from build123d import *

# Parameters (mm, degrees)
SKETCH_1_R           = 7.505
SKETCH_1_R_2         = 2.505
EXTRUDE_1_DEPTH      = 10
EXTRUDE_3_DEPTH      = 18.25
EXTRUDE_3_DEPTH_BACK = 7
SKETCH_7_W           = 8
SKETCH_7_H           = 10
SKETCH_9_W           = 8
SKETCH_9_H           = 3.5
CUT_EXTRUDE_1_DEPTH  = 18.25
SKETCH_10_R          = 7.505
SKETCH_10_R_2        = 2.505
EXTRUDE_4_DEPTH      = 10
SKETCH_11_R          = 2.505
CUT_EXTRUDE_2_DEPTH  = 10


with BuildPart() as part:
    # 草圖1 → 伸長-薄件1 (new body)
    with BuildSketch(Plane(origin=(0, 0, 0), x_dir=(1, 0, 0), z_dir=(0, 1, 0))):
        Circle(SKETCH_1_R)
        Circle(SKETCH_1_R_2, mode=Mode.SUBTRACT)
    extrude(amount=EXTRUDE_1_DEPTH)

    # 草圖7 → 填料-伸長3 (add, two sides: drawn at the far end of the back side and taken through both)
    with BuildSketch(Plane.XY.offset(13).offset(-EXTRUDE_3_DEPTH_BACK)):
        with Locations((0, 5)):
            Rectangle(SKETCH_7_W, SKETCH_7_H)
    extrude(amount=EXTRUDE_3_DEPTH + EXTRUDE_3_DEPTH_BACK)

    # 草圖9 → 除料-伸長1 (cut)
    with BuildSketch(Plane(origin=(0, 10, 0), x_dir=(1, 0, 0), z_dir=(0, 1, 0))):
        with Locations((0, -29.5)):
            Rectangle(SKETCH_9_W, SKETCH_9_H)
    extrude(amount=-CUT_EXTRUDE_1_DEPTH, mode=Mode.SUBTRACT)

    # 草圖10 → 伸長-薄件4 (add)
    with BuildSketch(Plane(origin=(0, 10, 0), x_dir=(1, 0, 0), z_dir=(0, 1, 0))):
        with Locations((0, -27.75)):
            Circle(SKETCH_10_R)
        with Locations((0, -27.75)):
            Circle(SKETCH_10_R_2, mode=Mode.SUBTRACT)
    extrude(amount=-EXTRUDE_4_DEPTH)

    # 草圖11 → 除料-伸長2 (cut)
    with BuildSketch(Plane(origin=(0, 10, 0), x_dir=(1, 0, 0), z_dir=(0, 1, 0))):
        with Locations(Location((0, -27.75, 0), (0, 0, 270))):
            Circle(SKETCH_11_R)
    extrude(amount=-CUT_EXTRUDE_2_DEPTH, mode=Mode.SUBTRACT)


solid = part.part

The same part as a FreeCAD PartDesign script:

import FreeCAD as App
import Part
import Sketcher
from FreeCAD import Vector

doc = App.newDocument("Part")
body = doc.addObject("PartDesign::Body", "Body")

# Sketch on XZ plane
sketch1 = doc.addObject("Sketcher::SketchObject", "Sketch")
body.addObject(sketch1)
sketch1.AttachmentSupport = (doc.XZ_Plane, [""])
sketch1.MapMode = "FlatFace"
sketch1.addGeometry([
    Part.Circle(Vector(0, 0, 0), Vector(0, 0, 1), 7.5),
    Part.Circle(Vector(0, 0, 0), Vector(0, 0, 1), 2.5),
], False)
sketch1.addConstraint([
    Sketcher.Constraint("Coincident", 0, 3, -1, 1),
    Sketcher.Constraint("Coincident", 1, 3, -1, 1),
    Sketcher.Constraint("Diameter", 0, 15.01),
    Sketcher.Constraint("Diameter", 1, 5.01),
])
pad1 = doc.addObject("PartDesign::Pad", "Pad")
body.addObject(pad1)
pad1.Profile = sketch1
pad1.Length = 10
pad1.Reversed = True

# Sketch on XY plane
sketch2 = doc.addObject("Sketcher::SketchObject", "Sketch001")
body.addObject(sketch2)
sketch2.AttachmentSupport = (doc.XY_Plane, [""])
sketch2.MapMode = "FlatFace"
sketch2.AttachmentOffset = App.Placement(Vector(0, 0, 13), App.Rotation())
sketch2.addGeometry([
    Part.LineSegment(Vector(-4, 10, 0), Vector(-4, 0, 0)),
    Part.LineSegment(Vector(-4, 0, 0), Vector(4, 0, 0)),
    Part.LineSegment(Vector(4, 0, 0), Vector(4, 10, 0)),
    Part.LineSegment(Vector(4, 10, 0), Vector(-4, 10, 0)),
], False)
sketch2.addConstraint([
    Sketcher.Constraint("Coincident", 0, 2, 1, 1),
    Sketcher.Constraint("Coincident", 1, 2, 2, 1),
    Sketcher.Constraint("Coincident", 2, 2, 3, 1),
    Sketcher.Constraint("Coincident", 3, 2, 0, 1),
    Sketcher.Constraint("Vertical", 0),
    Sketcher.Constraint("Horizontal", 1),
    Sketcher.Constraint("Vertical", 2),
    Sketcher.Constraint("Horizontal", 3),
    Sketcher.Constraint("Symmetric", 0, 2, 1, 2, -1, 1),
    Sketcher.Constraint("DistanceX", 1, 1, 1, 2, 8.0),
    Sketcher.Constraint("DistanceY", 0, 2, 0, 1, 10.0),
])
pad2 = doc.addObject("PartDesign::Pad", "Pad001")
body.addObject(pad2)
pad2.Profile = sketch2
pad2.Type = "TwoLengths"
pad2.Length = 18.25
pad2.Length2 = 7

# Sketch on XZ plane
sketch3 = doc.addObject("Sketcher::SketchObject", "Sketch002")
body.addObject(sketch3)
sketch3.AttachmentSupport = (doc.XZ_Plane, [""])
sketch3.MapMode = "FlatFace"
sketch3.AttachmentOffset = App.Placement(Vector(0, 0, -10), App.Rotation())
sketch3.addGeometry([
    Part.LineSegment(Vector(-4, 27.8, 0), Vector(-4, 31.2, 0)),
    Part.LineSegment(Vector(-4, 31.2, 0), Vector(4, 31.2, 0)),
    Part.LineSegment(Vector(4, 31.2, 0), Vector(4, 27.8, 0)),
    Part.LineSegment(Vector(4, 27.8, 0), Vector(-4, 27.8, 0)),
], False)
sketch3.addConstraint([
    Sketcher.Constraint("Coincident", 0, 2, 1, 1),
    Sketcher.Constraint("Coincident", 1, 2, 2, 1),
    Sketcher.Constraint("Coincident", 2, 2, 3, 1),
    Sketcher.Constraint("Coincident", 3, 2, 0, 1),
    Sketcher.Constraint("Vertical", 0),
    Sketcher.Constraint("Horizontal", 1),
    Sketcher.Constraint("Vertical", 2),
    Sketcher.Constraint("Horizontal", 3),
    Sketcher.Constraint("DistanceX", 1, 1, 1, 2, 8.0),
    Sketcher.Constraint("DistanceY", 0, 1, 0, 2, 3.5),
    Sketcher.Constraint("DistanceX", 0, 2, -1, 1, 4.0),
    Sketcher.Constraint("DistanceY", -1, 1, 0, 2, 31.25),
])
pocket1 = doc.addObject("PartDesign::Pocket", "Pocket")
body.addObject(pocket1)
pocket1.Profile = sketch3
pocket1.Length = 18.25
pocket1.Reversed = True

# Sketch on XZ plane
sketch4 = doc.addObject("Sketcher::SketchObject", "Sketch003")
body.addObject(sketch4)
sketch4.AttachmentSupport = (doc.XZ_Plane, [""])
sketch4.MapMode = "FlatFace"
sketch4.AttachmentOffset = App.Placement(Vector(0, 0, -10), App.Rotation())
sketch4.addGeometry([
    Part.Circle(Vector(0, 27.8, 0), Vector(0, 0, 1), 7.5),
    Part.Circle(Vector(0, 27.8, 0), Vector(0, 0, 1), 2.5),
], False)
sketch4.addConstraint([
    Sketcher.Constraint("Coincident", 1, 3, 0, 3),
    Sketcher.Constraint("PointOnObject", 0, 3, -2),
    Sketcher.Constraint("Diameter", 0, 15.01),
    Sketcher.Constraint("Diameter", 1, 5.01),
    Sketcher.Constraint("DistanceY", -1, 1, 0, 3, 27.75),
])
pad3 = doc.addObject("PartDesign::Pad", "Pad002")
body.addObject(pad3)
pad3.Profile = sketch4
pad3.Length = 10

# Sketch on XZ plane
sketch5 = doc.addObject("Sketcher::SketchObject", "Sketch004")
body.addObject(sketch5)
sketch5.AttachmentSupport = (doc.XZ_Plane, [""])
sketch5.MapMode = "FlatFace"
sketch5.AttachmentOffset = App.Placement(Vector(0, 0, -10), App.Rotation())
sketch5.addGeometry(Part.Circle(Vector(0, 27.8, 0), Vector(0, 0, 1), 2.5), False)
sketch5.addConstraint([
    Sketcher.Constraint("PointOnObject", 0, 3, -2),
    Sketcher.Constraint("Diameter", 0, 5.01),
    Sketcher.Constraint("DistanceY", -1, 1, 0, 3, 27.75),
])
pocket2 = doc.addObject("PartDesign::Pocket", "Pocket001")
body.addObject(pocket2)
pocket2.Profile = sketch5
pocket2.Length = 10
pocket2.Reversed = True

doc.recompute()
